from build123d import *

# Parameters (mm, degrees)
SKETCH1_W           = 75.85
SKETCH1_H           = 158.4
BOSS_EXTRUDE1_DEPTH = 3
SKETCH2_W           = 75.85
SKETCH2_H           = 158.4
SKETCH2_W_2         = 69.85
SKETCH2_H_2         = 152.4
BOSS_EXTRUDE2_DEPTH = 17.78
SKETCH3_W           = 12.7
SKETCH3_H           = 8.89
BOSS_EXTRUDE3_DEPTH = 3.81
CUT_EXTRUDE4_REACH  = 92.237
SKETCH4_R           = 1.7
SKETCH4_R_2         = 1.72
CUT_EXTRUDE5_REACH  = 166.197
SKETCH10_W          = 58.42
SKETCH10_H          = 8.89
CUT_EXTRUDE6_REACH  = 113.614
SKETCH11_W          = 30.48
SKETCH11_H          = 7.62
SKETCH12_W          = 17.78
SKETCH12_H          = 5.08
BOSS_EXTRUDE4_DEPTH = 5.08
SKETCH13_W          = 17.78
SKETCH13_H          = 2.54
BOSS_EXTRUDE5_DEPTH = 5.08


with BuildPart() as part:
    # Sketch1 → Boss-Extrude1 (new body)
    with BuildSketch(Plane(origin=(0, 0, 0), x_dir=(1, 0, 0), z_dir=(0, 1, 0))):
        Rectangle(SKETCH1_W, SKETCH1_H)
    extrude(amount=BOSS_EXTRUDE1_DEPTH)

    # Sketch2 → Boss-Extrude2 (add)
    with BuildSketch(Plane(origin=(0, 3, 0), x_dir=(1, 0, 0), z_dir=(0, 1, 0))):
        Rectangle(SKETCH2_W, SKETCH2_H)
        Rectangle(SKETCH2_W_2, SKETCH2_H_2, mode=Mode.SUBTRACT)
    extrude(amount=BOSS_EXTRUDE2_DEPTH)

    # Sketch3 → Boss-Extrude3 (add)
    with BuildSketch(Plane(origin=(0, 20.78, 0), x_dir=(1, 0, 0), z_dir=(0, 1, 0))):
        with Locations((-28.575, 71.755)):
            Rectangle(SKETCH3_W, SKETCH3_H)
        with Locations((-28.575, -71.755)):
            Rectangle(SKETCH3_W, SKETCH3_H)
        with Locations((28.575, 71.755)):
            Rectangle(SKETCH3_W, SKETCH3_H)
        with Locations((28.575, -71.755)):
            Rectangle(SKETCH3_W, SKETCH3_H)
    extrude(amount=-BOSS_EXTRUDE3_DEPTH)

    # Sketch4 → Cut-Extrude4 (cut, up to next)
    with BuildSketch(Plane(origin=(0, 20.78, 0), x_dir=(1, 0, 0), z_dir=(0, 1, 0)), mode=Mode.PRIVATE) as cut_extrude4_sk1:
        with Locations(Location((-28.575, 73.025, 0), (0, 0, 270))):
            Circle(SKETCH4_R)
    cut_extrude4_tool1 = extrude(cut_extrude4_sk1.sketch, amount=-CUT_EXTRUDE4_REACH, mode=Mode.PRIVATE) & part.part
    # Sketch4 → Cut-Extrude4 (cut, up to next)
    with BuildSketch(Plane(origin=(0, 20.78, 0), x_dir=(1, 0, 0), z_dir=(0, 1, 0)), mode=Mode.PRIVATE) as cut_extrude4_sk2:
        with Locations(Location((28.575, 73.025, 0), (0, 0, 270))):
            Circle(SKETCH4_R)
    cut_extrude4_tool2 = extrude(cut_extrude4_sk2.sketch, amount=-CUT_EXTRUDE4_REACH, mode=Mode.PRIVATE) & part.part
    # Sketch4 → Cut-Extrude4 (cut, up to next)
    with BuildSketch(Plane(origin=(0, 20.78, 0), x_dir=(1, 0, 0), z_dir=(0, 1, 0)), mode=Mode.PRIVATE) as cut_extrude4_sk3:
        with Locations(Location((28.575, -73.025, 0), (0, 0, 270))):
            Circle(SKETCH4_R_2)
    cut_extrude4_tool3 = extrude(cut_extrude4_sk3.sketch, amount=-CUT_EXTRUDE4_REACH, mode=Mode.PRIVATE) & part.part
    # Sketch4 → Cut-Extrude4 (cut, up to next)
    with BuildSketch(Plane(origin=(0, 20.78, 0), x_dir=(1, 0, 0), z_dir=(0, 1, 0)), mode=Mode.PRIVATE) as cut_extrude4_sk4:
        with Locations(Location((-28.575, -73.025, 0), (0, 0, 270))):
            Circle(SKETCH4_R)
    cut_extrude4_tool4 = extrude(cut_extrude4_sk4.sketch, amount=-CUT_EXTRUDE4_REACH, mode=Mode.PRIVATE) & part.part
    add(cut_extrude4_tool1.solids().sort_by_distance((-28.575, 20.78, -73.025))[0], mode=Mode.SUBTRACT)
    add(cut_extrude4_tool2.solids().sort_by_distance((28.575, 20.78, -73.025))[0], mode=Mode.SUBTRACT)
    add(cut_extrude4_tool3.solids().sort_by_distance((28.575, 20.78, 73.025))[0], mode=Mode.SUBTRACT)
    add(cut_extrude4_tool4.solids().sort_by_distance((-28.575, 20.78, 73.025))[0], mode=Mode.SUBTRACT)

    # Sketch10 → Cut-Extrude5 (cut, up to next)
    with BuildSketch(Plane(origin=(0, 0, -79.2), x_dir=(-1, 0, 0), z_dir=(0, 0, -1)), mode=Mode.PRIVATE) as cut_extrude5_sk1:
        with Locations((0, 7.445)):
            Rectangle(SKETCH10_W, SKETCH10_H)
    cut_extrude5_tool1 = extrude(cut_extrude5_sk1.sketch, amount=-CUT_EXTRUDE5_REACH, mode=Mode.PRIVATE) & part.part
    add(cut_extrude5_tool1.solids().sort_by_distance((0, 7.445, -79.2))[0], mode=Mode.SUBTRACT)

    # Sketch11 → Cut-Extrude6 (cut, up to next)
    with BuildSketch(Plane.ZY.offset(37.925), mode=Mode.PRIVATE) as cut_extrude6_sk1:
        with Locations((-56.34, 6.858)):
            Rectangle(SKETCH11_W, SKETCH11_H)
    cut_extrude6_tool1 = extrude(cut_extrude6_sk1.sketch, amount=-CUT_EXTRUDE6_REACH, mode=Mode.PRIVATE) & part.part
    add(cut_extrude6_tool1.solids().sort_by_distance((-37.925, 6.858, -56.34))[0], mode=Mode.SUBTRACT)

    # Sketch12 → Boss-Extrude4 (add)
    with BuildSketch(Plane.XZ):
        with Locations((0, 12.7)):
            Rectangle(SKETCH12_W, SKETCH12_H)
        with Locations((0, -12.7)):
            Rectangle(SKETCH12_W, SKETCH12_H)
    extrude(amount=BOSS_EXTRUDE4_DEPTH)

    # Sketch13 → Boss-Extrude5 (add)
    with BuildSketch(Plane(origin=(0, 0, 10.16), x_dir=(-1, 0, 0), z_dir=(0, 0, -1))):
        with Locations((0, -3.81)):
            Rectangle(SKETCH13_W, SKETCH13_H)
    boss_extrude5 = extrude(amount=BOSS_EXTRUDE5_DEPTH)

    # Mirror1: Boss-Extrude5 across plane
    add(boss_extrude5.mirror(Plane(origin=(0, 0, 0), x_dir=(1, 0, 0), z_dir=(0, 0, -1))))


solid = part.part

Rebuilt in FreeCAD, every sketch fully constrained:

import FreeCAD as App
import Part
import Sketcher
Q = App.Units.Quantity

doc = App.newDocument("Part")
params = doc.addObject("Spreadsheet::Sheet", "Params")
for row, (alias, value) in enumerate([
    ("pad1_length", "3 mm"),
    ("sketch2_height", "6 in"),
    ("sketch2_width", "2.75 in"),
    ("pad2_length", "0.7 in"),
    ("sketch3_width", "0.5 in"),
    ("sketch3_height", "0.35 in"),
    ("pad3_length", "0.15 in"),
    ("sketch8_width", "2.3 in"),
    ("sketch8_height", "0.35 in"),
    ("sketch9_width", "0.3 in"),
    ("sketch9_height", "1.2 in"),
    ("sketch10_width", "0.7 in"),
    ("sketch10_height", "0.2 in"),
    ("pad4_length", "0.2 in"),
    ("sketch11_width", "0.7 in"),
    ("sketch11_height", "0.1 in"),
    ("pad5_length", "0.2 in"),
], start=1):
    params.set(f"A{row}", alias)
    params.set(f"B{row}", "=" + value)
    params.setAlias(f"B{row}", alias)

body = doc.addObject("PartDesign::Body", "Body")

# Sketch on XZ plane
sketch1 = doc.addObject("Sketcher::SketchObject", "Sketch")
body.addObject(sketch1)
sketch1.AttachmentSupport = (doc.XZ_Plane, [""])
sketch1.MapMode = "FlatFace"
sketch1.addGeometry([
    Part.LineSegment(App.Vector(-38, -79, 0), App.Vector(-38, 79, 0)),
    Part.LineSegment(App.Vector(-38, 79, 0), App.Vector(38, 79, 0)),
    Part.LineSegment(App.Vector(38, 79, 0), App.Vector(38, -79, 0)),
    Part.LineSegment(App.Vector(38, -79, 0), App.Vector(-38, -79, 0)),
], False)
sketch1.addConstraint([
    Sketcher.Constraint("Coincident", 0, 2, 1, 1),
    Sketcher.Constraint("Coincident", 1, 2, 2, 1),
    Sketcher.Constraint("Coincident", 2, 2, 3, 1),
    Sketcher.Constraint("Coincident", 3, 2, 0, 1),
    Sketcher.Constraint("Vertical", 0),
    Sketcher.Constraint("Horizontal", 1),
    Sketcher.Constraint("Vertical", 2),
    Sketcher.Constraint("Horizontal", 3),
    Sketcher.Constraint("Symmetric", 0, 2, 2, 2, -1, 1),
    Sketcher.Constraint("DistanceX", 1, 1, 1, 2, Q("75.85 mm")),
    Sketcher.Constraint("DistanceY", 0, 1, 0, 2, Q("158.4 mm")),
])
pad1 = doc.addObject("PartDesign::Pad", "Pad")
body.addObject(pad1)
pad1.Profile = sketch1
pad1.setExpression("Length", "Params.pad1_length")
pad1.Reversed = True

# Sketch on XZ plane
sketch2 = doc.addObject("Sketcher::SketchObject", "Sketch001")
body.addObject(sketch2)
sketch2.AttachmentSupport = (doc.XZ_Plane, [""])
sketch2.MapMode = "FlatFace"
sketch2.AttachmentOffset = App.Placement(App.Vector(0, 0, -3), App.Rotation())
sketch2.addGeometry([
    Part.LineSegment(App.Vector(-38, -79, 0), App.Vector(-38, 79, 0)),  # 0
    Part.LineSegment(App.Vector(-38, 79, 0), App.Vector(38, 79, 0)),  # 1
    Part.LineSegment(App.Vector(38, 79, 0), App.Vector(38, -79, 0)),  # 2
    Part.LineSegment(App.Vector(38, -79, 0), App.Vector(-38, -79, 0)),  # 3
    Part.LineSegment(App.Vector(35, 76, 0), App.Vector(-35, 76, 0)),  # 4
    Part.LineSegment(App.Vector(-35, 76, 0), App.Vector(-35, -76, 0)),  # 5
    Part.LineSegment(App.Vector(-35, -76, 0), App.Vector(35, -76, 0)),  # 6
    Part.LineSegment(App.Vector(35, -76, 0), App.Vector(35, 76, 0)),  # 7
], False)
sketch2.addConstraint([
    Sketcher.Constraint("Coincident", 0, 2, 1, 1),
    Sketcher.Constraint("Coincident", 1, 2, 2, 1),
    Sketcher.Constraint("Coincident", 2, 2, 3, 1),
    Sketcher.Constraint("Coincident", 3, 2, 0, 1),
    Sketcher.Constraint("Coincident", 4, 2, 5, 1),
    Sketcher.Constraint("Coincident", 5, 2, 6, 1),
    Sketcher.Constraint("Coincident", 6, 2, 7, 1),
    Sketcher.Constraint("Coincident", 7, 2, 4, 1),
    Sketcher.Constraint("Vertical", 0),
    Sketcher.Constraint("Horizontal", 1),
    Sketcher.Constraint("Vertical", 2),
    Sketcher.Constraint("Horizontal", 3),
    Sketcher.Constraint("Horizontal", 4),
    Sketcher.Constraint("Vertical", 5),
    Sketcher.Constraint("Horizontal", 6),
    Sketcher.Constraint("Vertical", 7),
    Sketcher.Constraint("Symmetric", 0, 2, 2, 2, -1, 1),
    Sketcher.Constraint("Symmetric", 4, 2, 6, 2, -1, 1),
    Sketcher.Constraint("DistanceY", 5, 2, 5, 1, Q("6 in")),
    Sketcher.Constraint("DistanceX", 4, 2, 4, 1, Q("2.75 in")),
    Sketcher.Constraint("DistanceX", 1, 1, 1, 2, Q("75.85 mm")),
    Sketcher.Constraint("DistanceY", 0, 1, 0, 2, Q("158.4 mm")),
])
sketch2.setExpression("Constraints[18]", "Params.sketch2_height")
sketch2.setExpression("Constraints[19]", "Params.sketch2_width")
pad2 = doc.addObject("PartDesign::Pad", "Pad001")
body.addObject(pad2)
pad2.Profile = sketch2
pad2.setExpression("Length", "Params.pad2_length")
pad2.Reversed = True

# Sketch on XZ plane
sketch3 = doc.addObject("Sketcher::SketchObject", "Sketch002")
body.addObject(sketch3)
sketch3.AttachmentSupport = (doc.XZ_Plane, [""])
sketch3.MapMode = "FlatFace"
sketch3.AttachmentOffset = App.Placement(App.Vector(0, 0, -20.78), App.Rotation())
sketch3.addGeometry([
    Part.LineSegment(App.Vector(-35, -76, 0), App.Vector(-35, -67, 0)),  # 0
    Part.LineSegment(App.Vector(-35, -67, 0), App.Vector(-22, -67, 0)),  # 1
    Part.LineSegment(App.Vector(-22, -67, 0), App.Vector(-22, -76, 0)),  # 2
    Part.LineSegment(App.Vector(-22, -76, 0), App.Vector(-35, -76, 0)),  # 3
    Part.LineSegment(App.Vector(-35, 67, 0), App.Vector(-35, 76, 0)),  # 4
    Part.LineSegment(App.Vector(-35, 76, 0), App.Vector(-22, 76, 0)),  # 5
    Part.LineSegment(App.Vector(-22, 76, 0), App.Vector(-22, 67, 0)),  # 6
    Part.LineSegment(App.Vector(-22, 67, 0), App.Vector(-35, 67, 0)),  # 7
    Part.LineSegment(App.Vector(22, -76, 0), App.Vector(22, -67, 0)),  # 8
    Part.LineSegment(App.Vector(22, -67, 0), App.Vector(35, -67, 0)),  # 9
    Part.LineSegment(App.Vector(35, -67, 0), App.Vector(35, -76, 0)),  # 10
    Part.LineSegment(App.Vector(35, -76, 0), App.Vector(22, -76, 0)),  # 11
    Part.LineSegment(App.Vector(22, 67, 0), App.Vector(22, 76, 0)),  # 12
    Part.LineSegment(App.Vector(22, 76, 0), App.Vector(35, 76, 0)),  # 13
    Part.LineSegment(App.Vector(35, 76, 0), App.Vector(35, 67, 0)),  # 14
    Part.LineSegment(App.Vector(35, 67, 0), App.Vector(22, 67, 0)),  # 15
], False)
sketch3.addConstraint([
    Sketcher.Constraint("Coincident", 0, 2, 1, 1),
    Sketcher.Constraint("Coincident", 1, 2, 2, 1),
    Sketcher.Constraint("Coincident", 2, 2, 3, 1),
    Sketcher.Constraint("Coincident", 3, 2, 0, 1),
    Sketcher.Constraint("Coincident", 4, 2, 5, 1),
    Sketcher.Constraint("Coincident", 5, 2, 6, 1),
    Sketcher.Constraint("Coincident", 6, 2, 7, 1),
    Sketcher.Constraint("Coincident", 7, 2, 4, 1),
    Sketcher.Constraint("Coincident", 8, 2, 9, 1),
    Sketcher.Constraint("Coincident", 9, 2, 10, 1),
    Sketcher.Constraint("Coincident", 10, 2, 11, 1),
    Sketcher.Constraint("Coincident", 11, 2, 8, 1),
    Sketcher.Constraint("Coincident", 12, 2, 13, 1),
    Sketcher.Constraint("Coincident", 13, 2, 14, 1),
    Sketcher.Constraint("Coincident", 14, 2, 15, 1),
    Sketcher.Constraint("Coincident", 15, 2, 12, 1),
    Sketcher.Constraint("Vertical", 0),
    Sketcher.Constraint("Horizontal", 1),
    Sketcher.Constraint("Vertical", 2),
    Sketcher.Constraint("Horizontal", 3),
    Sketcher.Constraint("Vertical", 4),
    Sketcher.Constraint("Horizontal", 5),
    Sketcher.Constraint("Vertical", 6),
    Sketcher.Constraint("Horizontal", 7),
    Sketcher.Constraint("Vertical", 8),
    Sketcher.Constraint("Horizontal", 9),
    Sketcher.Constraint("Vertical", 10),
    Sketcher.Constraint("Horizontal", 11),
    Sketcher.Constraint("Vertical", 12),
    Sketcher.Constraint("Horizontal", 13),
    Sketcher.Constraint("Vertical", 14),
    Sketcher.Constraint("Horizontal", 15),
    Sketcher.Constraint("Symmetric", 6, 2, 8, 2, -1, 1),
    Sketcher.Constraint("Symmetric", 4, 2, 10, 2, -1, 1),
    Sketcher.Constraint("Symmetric", 2, 2, 12, 2, -1, 1),
    Sketcher.Constraint("Symmetric", 0, 2, 14, 2, -1, 1),
    Sketcher.Constraint("Symmetric", 1, 2, 8, 2, -2),
    Sketcher.Constraint("Symmetric", 3, 2, 10, 2, -2),
    Sketcher.Constraint("DistanceX", 1, 1, 1, 2, Q("0.5 in")),
    Sketcher.Constraint("DistanceY", 2, 2, -1, 1, Q("3 in")),
    Sketcher.Constraint("DistanceY", 0, 1, 0, 2, Q("0.35 in")),
    Sketcher.Constraint("DistanceX", 1, 2, 8, 2, Q("1.75 in")),
])
sketch3.setExpression("Constraints[38]", "Params.sketch3_width")
sketch3.setExpression("Constraints[40]", "Params.sketch3_height")
pad3 = doc.addObject("PartDesign::Pad", "Pad002")
body.addObject(pad3)
pad3.Profile = sketch3
pad3.setExpression("Length", "Params.pad3_length")

# Sketch on XZ plane
sketch4 = doc.addObject("Sketcher::SketchObject", "Sketch003")
body.addObject(sketch4)
sketch4.AttachmentSupport = (doc.XZ_Plane, [""])
sketch4.MapMode = "FlatFace"
sketch4.AttachmentOffset = App.Placement(App.Vector(0, 0, -20.78), App.Rotation())
sketch4.addGeometry(Part.Circle(App.Vector(-28.6, -73, 0), App.Vector(0, 0, 1), 1.7), False)
sketch4.addConstraint([
    Sketcher.Constraint("Diameter", 0, Q("3.4 mm")),
    Sketcher.Constraint("DistanceX", 0, 3, -1, 1, Q("1.125 in")),
    Sketcher.Constraint("DistanceY", 0, 3, -1, 1, Q("2.875 in")),
])
pocket1 = doc.addObject("PartDesign::Pocket", "Pocket")
body.addObject(pocket1)
pocket1.Profile = sketch4
pocket1.Type = "UpToFirst"
pocket1.Reversed = True

# Sketch on XZ plane
sketch5 = doc.addObject("Sketcher::SketchObject", "Sketch004")
body.addObject(sketch5)
sketch5.AttachmentSupport = (doc.XZ_Plane, [""])
sketch5.MapMode = "FlatFace"
sketch5.AttachmentOffset = App.Placement(App.Vector(0, 0, -20.78), App.Rotation())
sketch5.addGeometry(Part.Circle(App.Vector(28.6, -73, 0), App.Vector(0, 0, 1), 1.7), False)
sketch5.addConstraint([
    Sketcher.Constraint("Diameter", 0, Q("3.4 mm")),
    Sketcher.Constraint("DistanceX", -1, 1, 0, 3, Q("1.125 in")),
    Sketcher.Constraint("DistanceY", 0, 3, -1, 1, Q("2.875 in")),
])
pocket2 = doc.addObject("PartDesign::Pocket", "Pocket001")
body.addObject(pocket2)
pocket2.Profile = sketch5
pocket2.Type = "UpToFirst"
pocket2.Reversed = True

# Sketch on XZ plane
sketch6 = doc.addObject("Sketcher::SketchObject", "Sketch005")
body.addObject(sketch6)
sketch6.AttachmentSupport = (doc.XZ_Plane, [""])
sketch6.MapMode = "FlatFace"
sketch6.AttachmentOffset = App.Placement(App.Vector(0, 0, -20.78), App.Rotation())
sketch6.addGeometry(Part.Circle(App.Vector(28.6, 73, 0), App.Vector(0, 0, 1), 1.7), False)
sketch6.addConstraint([
    Sketcher.Constraint("Diameter", 0, Q("3.44 mm")),
    Sketcher.Constraint("DistanceX", -1, 1, 0, 3, Q("1.125 in")),
    Sketcher.Constraint("DistanceY", -1, 1, 0, 3, Q("2.875 in")),
])
pocket3 = doc.addObject("PartDesign::Pocket", "Pocket002")
body.addObject(pocket3)
pocket3.Profile = sketch6
pocket3.Type = "UpToFirst"
pocket3.Reversed = True

# Sketch on XZ plane
sketch7 = doc.addObject("Sketcher::SketchObject", "Sketch006")
body.addObject(sketch7)
sketch7.AttachmentSupport = (doc.XZ_Plane, [""])
sketch7.MapMode = "FlatFace"
sketch7.AttachmentOffset = App.Placement(App.Vector(0, 0, -20.78), App.Rotation())
sketch7.addGeometry(Part.Circle(App.Vector(-28.6, 73, 0), App.Vector(0, 0, 1), 1.7), False)
sketch7.addConstraint([
    Sketcher.Constraint("Diameter", 0, Q("3.4 mm")),
    Sketcher.Constraint("DistanceX", 0, 3, -1, 1, Q("1.125 in")),
    Sketcher.Constraint("DistanceY", -1, 1, 0, 3, Q("2.875 in")),
])
pocket4 = doc.addObject("PartDesign::Pocket", "Pocket003")
body.addObject(pocket4)
pocket4.Profile = sketch7
pocket4.Type = "UpToFirst"
pocket4.Reversed = True

# Sketch on XY plane
sketch8 = doc.addObject("Sketcher::SketchObject", "Sketch007")
body.addObject(sketch8)
sketch8.AttachmentSupport = (doc.XY_Plane, [""])
sketch8.MapMode = "FlatFace"
sketch8.AttachmentOffset = App.Placement(App.Vector(0, 0, -79.2), App.Rotation())
sketch8.addGeometry([
    Part.LineSegment(App.Vector(29, 12, 0), App.Vector(29, 3, 0)),
    Part.LineSegment(App.Vector(29, 3, 0), App.Vector(-29, 3, 0)),
    Part.LineSegment(App.Vector(-29, 3, 0), App.Vector(-29, 12, 0)),
    Part.LineSegment(App.Vector(-29, 12, 0), App.Vector(29, 12, 0)),
], False)
sketch8.addConstraint([
    Sketcher.Constraint("Coincident", 0, 2, 1, 1),
    Sketcher.Constraint("Coincident", 1, 2, 2, 1),
    Sketcher.Constraint("Coincident", 2, 2, 3, 1),
    Sketcher.Constraint("Coincident", 3, 2, 0, 1),
    Sketcher.Constraint("Vertical", 0),
    Sketcher.Constraint("Horizontal", 1),
    Sketcher.Constraint("Vertical", 2),
    Sketcher.Constraint("Horizontal", 3),
    Sketcher.Constraint("DistanceX", 1, 2, 1, 1, Q("2.3 in")),
    Sketcher.Constraint("DistanceY", 0, 2, 0, 1, Q("0.35 in")),
    Sketcher.Constraint("DistanceX", -1, 1, 0, 2, Q("1.15 in")),
    Sketcher.Constraint("DistanceY", -1, 1, 0, 2, Q("3 mm")),
])
sketch8.setExpression("Constraints[8]", "Params.sketch8_width")
sketch8.setExpression("Constraints[9]", "Params.sketch8_height")
pocket5 = doc.addObject("PartDesign::Pocket", "Pocket004")
body.addObject(pocket5)
pocket5.Profile = sketch8
pocket5.Type = "UpToFirst"
pocket5.Reversed = True

# Sketch on YZ plane
sketch9 = doc.addObject("Sketcher::SketchObject", "Sketch008")
body.addObject(sketch9)
sketch9.AttachmentSupport = (doc.YZ_Plane, [""])
sketch9.MapMode = "FlatFace"
sketch9.AttachmentOffset = App.Placement(App.Vector(0, 0, -37.925), App.Rotation())
sketch9.addGeometry([
    Part.LineSegment(App.Vector(11, -72, 0), App.Vector(3, -72, 0)),
    Part.LineSegment(App.Vector(3, -72, 0), App.Vector(3, -41, 0)),
    Part.LineSegment(App.Vector(3, -41, 0), App.Vector(11, -41, 0)),
    Part.LineSegment(App.Vector(11, -41, 0), App.Vector(11, -72, 0)),
], False)
sketch9.addConstraint([
    Sketcher.Constraint("Coincident", 0, 2, 1, 1),
    Sketcher.Constraint("Coincident", 1, 2, 2, 1),
    Sketcher.Constraint("Coincident", 2, 2, 3, 1),
    Sketcher.Constraint("Coincident", 3, 2, 0, 1),
    Sketcher.Constraint("Horizontal", 0),
    Sketcher.Constraint("Vertical", 1),
    Sketcher.Constraint("Horizontal", 2),
    Sketcher.Constraint("Vertical", 3),
    Sketcher.Constraint("DistanceX", 0, 2, 0, 1, Q("0.3 in")),
    Sketcher.Constraint("DistanceY", 1, 1, 1, 2, Q("1.2 in")),
    Sketcher.Constraint("DistanceX", -1, 1, 0, 2, Q("0.12 in")),
    Sketcher.Constraint("DistanceY", 0, 2, -1, 1, Q("71.58 mm")),
])
sketch9.setExpression("Constraints[8]", "Params.sketch9_width")
sketch9.setExpression("Constraints[9]", "Params.sketch9_height")
pocket6 = doc.addObject("PartDesign::Pocket", "Pocket005")
body.addObject(pocket6)
pocket6.Profile = sketch9
pocket6.Type = "UpToFirst"
pocket6.Reversed = True

# Sketch on XZ plane
sketch10 = doc.addObject("Sketcher::SketchObject", "Sketch009")
body.addObject(sketch10)
sketch10.AttachmentSupport = (doc.XZ_Plane, [""])
sketch10.MapMode = "FlatFace"
sketch10.addGeometry([
    Part.LineSegment(App.Vector(-9, 15, 0), App.Vector(-9, 10, 0)),  # 0
    Part.LineSegment(App.Vector(-9, 10, 0), App.Vector(9, 10, 0)),  # 1
    Part.LineSegment(App.Vector(9, 10, 0), App.Vector(9, 15, 0)),  # 2
    Part.LineSegment(App.Vector(9, 15, 0), App.Vector(-9, 15, 0)),  # 3
    Part.LineSegment(App.Vector(-9, -10, 0), App.Vector(-9, -15, 0)),  # 4
    Part.LineSegment(App.Vector(-9, -15, 0), App.Vector(9, -15, 0)),  # 5
    Part.LineSegment(App.Vector(9, -15, 0), App.Vector(9, -10, 0)),  # 6
    Part.LineSegment(App.Vector(9, -10, 0), App.Vector(-9, -10, 0)),  # 7
], False)
sketch10.addConstraint([
    Sketcher.Constraint("Coincident", 0, 2, 1, 1),
    Sketcher.Constraint("Coincident", 1, 2, 2, 1),
    Sketcher.Constraint("Coincident", 2, 2, 3, 1),
    Sketcher.Constraint("Coincident", 3, 2, 0, 1),
    Sketcher.Constraint("Coincident", 4, 2, 5, 1),
    Sketcher.Constraint("Coincident", 5, 2, 6, 1),
    Sketcher.Constraint("Coincident", 6, 2, 7, 1),
    Sketcher.Constraint("Coincident", 7, 2, 4, 1),
    Sketcher.Constraint("Vertical", 0),
    Sketcher.Constraint("Horizontal", 1),
    Sketcher.Constraint("Vertical", 2),
    Sketcher.Constraint("Horizontal", 3),
    Sketcher.Constraint("Vertical", 4),
    Sketcher.Constraint("Horizontal", 5),
    Sketcher.Constraint("Vertical", 6),
    Sketcher.Constraint("Horizontal", 7),
    Sketcher.Constraint("Symmetric", 2, 2, 4, 2, -1, 1),
    Sketcher.Constraint("Symmetric", 0, 2, 6, 2, -1, 1),
    Sketcher.Constraint("Vertical", 3, 2, 4, 2),
    Sketcher.Constraint("DistanceX", 1, 1, 1, 2, Q("0.7 in")),
    Sketcher.Constraint("DistanceY", 0, 2, 0, 1, Q("0.2 in")),
    Sketcher.Constraint("DistanceY", 4, 2, 0, 2, Q("1 in")),
])
sketch10.setExpression("Constraints[19]", "Params.sketch10_width")
sketch10.setExpression("Constraints[20]", "Params.sketch10_height")
pad4 = doc.addObject("PartDesign::Pad", "Pad003")
body.addObject(pad4)
pad4.Profile = sketch10
pad4.setExpression("Length", "Params.pad4_length")

# Sketch on XY plane
sketch11 = doc.addObject("Sketcher::SketchObject", "Sketch010")
body.addObject(sketch11)
sketch11.AttachmentSupport = (doc.XY_Plane, [""])
sketch11.MapMode = "FlatFace"
sketch11.AttachmentOffset = App.Placement(App.Vector(0, 0, 0.4 * 25.4), App.Rotation())
sketch11.addGeometry([
    Part.LineSegment(App.Vector(8.9, -2.5, 0), App.Vector(8.9, -5.1, 0)),
    Part.LineSegment(App.Vector(8.9, -5.1, 0), App.Vector(-8.9, -5.1, 0)),
    Part.LineSegment(App.Vector(-8.9, -5.1, 0), App.Vector(-8.9, -2.5, 0)),
    Part.LineSegment(App.Vector(-8.9, -2.5, 0), App.Vector(8.9, -2.5, 0)),
], False)
sketch11.addConstraint([
    Sketcher.Constraint("Coincident", 0, 2, 1, 1),
    Sketcher.Constraint("Coincident", 1, 2, 2, 1),
    Sketcher.Constraint("Coincident", 2, 2, 3, 1),
    Sketcher.Constraint("Coincident", 3, 2, 0, 1),
    Sketcher.Constraint("Vertical", 0),
    Sketcher.Constraint("Horizontal", 1),
    Sketcher.Constraint("Vertical", 2),
    Sketcher.Constraint("Horizontal", 3),
    Sketcher.Constraint("DistanceX", 1, 2, 1, 1, Q("0.7 in")),
    Sketcher.Constraint("DistanceY", 0, 2, 0, 1, Q("0.1 in")),
    Sketcher.Constraint("DistanceY", 0, 2, -1, 1, Q("0.2 in")),
    Sketcher.Constraint("DistanceX", -1, 1, 0, 2, Q("0.35 in")),
])
sketch11.setExpression("Constraints[8]", "Params.sketch11_width")
sketch11.setExpression("Constraints[9]", "Params.sketch11_height")
pad5 = doc.addObject("PartDesign::Pad", "Pad004")
body.addObject(pad5)
pad5.Profile = sketch11
pad5.setExpression("Length", "Params.pad5_length")
pad5.Reversed = True
doc.recompute()

mirrored = doc.addObject("PartDesign::Mirrored", "Mirrored")
body.addObject(mirrored)
mirrored.Originals = [pad5]
mirrored.MirrorPlane = (doc.XY_Plane, [""])
body.Tip = mirrored

doc.recompute()
